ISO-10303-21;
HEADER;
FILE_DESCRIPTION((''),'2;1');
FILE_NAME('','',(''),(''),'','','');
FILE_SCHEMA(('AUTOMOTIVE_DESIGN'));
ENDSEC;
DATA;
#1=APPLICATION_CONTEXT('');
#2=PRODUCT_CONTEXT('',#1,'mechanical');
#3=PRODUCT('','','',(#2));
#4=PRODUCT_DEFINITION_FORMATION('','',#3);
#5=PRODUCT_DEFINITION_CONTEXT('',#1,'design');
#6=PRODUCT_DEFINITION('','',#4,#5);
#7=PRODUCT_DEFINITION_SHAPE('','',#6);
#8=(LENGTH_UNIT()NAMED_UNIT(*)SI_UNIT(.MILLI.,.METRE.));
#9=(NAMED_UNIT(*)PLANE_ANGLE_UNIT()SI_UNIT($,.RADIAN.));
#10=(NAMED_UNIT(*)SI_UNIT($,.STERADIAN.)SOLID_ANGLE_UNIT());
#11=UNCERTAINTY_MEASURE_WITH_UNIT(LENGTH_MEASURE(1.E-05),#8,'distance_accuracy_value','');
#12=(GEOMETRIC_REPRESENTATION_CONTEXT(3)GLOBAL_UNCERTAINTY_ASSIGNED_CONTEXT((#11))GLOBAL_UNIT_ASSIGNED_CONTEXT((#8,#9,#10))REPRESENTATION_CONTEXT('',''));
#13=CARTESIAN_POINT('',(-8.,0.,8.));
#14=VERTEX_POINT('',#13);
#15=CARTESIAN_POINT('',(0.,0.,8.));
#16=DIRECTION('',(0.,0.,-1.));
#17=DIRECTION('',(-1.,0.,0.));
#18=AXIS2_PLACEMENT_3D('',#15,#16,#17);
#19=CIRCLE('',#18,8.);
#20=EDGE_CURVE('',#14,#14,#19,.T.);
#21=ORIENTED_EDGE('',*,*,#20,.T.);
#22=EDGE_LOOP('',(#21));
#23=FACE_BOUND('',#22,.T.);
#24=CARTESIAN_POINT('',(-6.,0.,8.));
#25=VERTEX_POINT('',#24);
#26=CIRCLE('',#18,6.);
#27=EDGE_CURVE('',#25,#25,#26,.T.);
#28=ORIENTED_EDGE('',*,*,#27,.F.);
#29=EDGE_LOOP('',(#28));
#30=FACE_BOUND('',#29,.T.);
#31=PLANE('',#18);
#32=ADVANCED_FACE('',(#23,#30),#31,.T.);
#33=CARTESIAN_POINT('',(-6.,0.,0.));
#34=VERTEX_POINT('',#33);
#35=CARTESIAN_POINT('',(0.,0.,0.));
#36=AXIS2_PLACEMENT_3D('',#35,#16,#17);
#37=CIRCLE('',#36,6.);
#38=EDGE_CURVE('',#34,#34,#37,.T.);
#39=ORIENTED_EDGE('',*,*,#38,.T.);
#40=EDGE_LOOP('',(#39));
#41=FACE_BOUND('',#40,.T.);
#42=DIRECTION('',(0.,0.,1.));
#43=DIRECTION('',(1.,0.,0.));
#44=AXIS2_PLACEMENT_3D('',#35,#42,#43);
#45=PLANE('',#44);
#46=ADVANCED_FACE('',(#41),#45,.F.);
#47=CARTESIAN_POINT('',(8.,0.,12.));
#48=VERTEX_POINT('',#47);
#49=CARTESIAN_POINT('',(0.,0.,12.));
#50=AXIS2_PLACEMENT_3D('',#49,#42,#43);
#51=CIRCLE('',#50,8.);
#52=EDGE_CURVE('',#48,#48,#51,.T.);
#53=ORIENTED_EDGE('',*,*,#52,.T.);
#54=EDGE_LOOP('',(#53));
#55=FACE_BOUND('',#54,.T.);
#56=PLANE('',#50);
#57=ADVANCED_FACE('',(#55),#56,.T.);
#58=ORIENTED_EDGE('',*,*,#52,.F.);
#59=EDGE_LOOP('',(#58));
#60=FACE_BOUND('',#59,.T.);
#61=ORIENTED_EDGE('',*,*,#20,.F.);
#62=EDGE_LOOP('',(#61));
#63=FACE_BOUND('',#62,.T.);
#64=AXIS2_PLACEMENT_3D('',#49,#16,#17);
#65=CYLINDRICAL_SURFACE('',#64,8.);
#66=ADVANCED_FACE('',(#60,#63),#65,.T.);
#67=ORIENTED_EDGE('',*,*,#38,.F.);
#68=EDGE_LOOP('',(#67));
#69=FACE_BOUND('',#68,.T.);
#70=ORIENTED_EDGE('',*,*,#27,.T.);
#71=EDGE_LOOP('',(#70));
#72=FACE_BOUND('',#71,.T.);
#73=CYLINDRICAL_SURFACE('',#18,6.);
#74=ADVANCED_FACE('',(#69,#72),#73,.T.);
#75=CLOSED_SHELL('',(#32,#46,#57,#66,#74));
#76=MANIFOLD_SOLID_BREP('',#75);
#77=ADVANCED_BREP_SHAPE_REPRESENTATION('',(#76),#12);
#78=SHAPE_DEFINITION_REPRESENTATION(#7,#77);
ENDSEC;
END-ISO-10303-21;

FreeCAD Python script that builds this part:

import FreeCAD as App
import Part
import Sketcher

doc = App.newDocument("Part")
body = doc.addObject("PartDesign::Body", "Body")

sketch1 = body.newObject("Sketcher::SketchObject", "Sketch")
sketch1.AttachmentSupport = (doc.getObject("XY_Plane"), [""])
sketch1.MapMode = "FlatFace"
sketch1.addGeometry(Part.Circle(App.Vector(0, 0, 0), App.Vector(0, 0, 1), 8), False)
sketch1.addConstraint([
    Sketcher.Constraint("Coincident", 0, 3, -1, 1),
    Sketcher.Constraint("Diameter", 0, 16.0),
])
pad1 = body.newObject("PartDesign::Pad", "Pad")
pad1.Profile = sketch1
pad1.Length = 12

sketch2 = body.newObject("Sketcher::SketchObject", "Sketch001")
sketch2.AttachmentSupport = (doc.getObject("XY_Plane"), [""])
sketch2.MapMode = "FlatFace"
sketch2.addGeometry([
    Part.LineSegment(App.Vector(12, 12, 0), App.Vector(12, -12, 0)),
    Part.LineSegment(App.Vector(12, -12, 0), App.Vector(-12, -12, 0)),
    Part.LineSegment(App.Vector(-12, -12, 0), App.Vector(-12, 12, 0)),
    Part.LineSegment(App.Vector(-12, 12, 0), App.Vector(12, 12, 0)),
    Part.Circle(App.Vector(0, 0, 0), App.Vector(0, 0, 1), 6),
], False)
sketch2.addConstraint([
    Sketcher.Constraint("Coincident", 0, 2, 1, 1),
    Sketcher.Constraint("Coincident", 1, 2, 2, 1),
    Sketcher.Constraint("Coincident", 2, 2, 3, 1),
    Sketcher.Constraint("Coincident", 3, 2, 0, 1),
    Sketcher.Constraint("Vertical", 0),
    Sketcher.Constraint("Horizontal", 1),
    Sketcher.Constraint("Vertical", 2),
    Sketcher.Constraint("Horizontal", 3),
    Sketcher.Constraint("Coincident", 4, 3, -1, 1),
    Sketcher.Constraint("Symmetric", 0, 2, 2, 2, -1, 1),
    Sketcher.Constraint("Equal", 3, 0),
    Sketcher.Constraint("Diameter", 4, 12.0),
    Sketcher.Constraint("DistanceX", 1, 2, 1, 1, 23.122),
])
pocket1 = body.newObject("PartDesign::Pocket", "Pocket")
pocket1.Profile = sketch2
pocket1.Length = 8
pocket1.Reversed = True

doc.recompute()
